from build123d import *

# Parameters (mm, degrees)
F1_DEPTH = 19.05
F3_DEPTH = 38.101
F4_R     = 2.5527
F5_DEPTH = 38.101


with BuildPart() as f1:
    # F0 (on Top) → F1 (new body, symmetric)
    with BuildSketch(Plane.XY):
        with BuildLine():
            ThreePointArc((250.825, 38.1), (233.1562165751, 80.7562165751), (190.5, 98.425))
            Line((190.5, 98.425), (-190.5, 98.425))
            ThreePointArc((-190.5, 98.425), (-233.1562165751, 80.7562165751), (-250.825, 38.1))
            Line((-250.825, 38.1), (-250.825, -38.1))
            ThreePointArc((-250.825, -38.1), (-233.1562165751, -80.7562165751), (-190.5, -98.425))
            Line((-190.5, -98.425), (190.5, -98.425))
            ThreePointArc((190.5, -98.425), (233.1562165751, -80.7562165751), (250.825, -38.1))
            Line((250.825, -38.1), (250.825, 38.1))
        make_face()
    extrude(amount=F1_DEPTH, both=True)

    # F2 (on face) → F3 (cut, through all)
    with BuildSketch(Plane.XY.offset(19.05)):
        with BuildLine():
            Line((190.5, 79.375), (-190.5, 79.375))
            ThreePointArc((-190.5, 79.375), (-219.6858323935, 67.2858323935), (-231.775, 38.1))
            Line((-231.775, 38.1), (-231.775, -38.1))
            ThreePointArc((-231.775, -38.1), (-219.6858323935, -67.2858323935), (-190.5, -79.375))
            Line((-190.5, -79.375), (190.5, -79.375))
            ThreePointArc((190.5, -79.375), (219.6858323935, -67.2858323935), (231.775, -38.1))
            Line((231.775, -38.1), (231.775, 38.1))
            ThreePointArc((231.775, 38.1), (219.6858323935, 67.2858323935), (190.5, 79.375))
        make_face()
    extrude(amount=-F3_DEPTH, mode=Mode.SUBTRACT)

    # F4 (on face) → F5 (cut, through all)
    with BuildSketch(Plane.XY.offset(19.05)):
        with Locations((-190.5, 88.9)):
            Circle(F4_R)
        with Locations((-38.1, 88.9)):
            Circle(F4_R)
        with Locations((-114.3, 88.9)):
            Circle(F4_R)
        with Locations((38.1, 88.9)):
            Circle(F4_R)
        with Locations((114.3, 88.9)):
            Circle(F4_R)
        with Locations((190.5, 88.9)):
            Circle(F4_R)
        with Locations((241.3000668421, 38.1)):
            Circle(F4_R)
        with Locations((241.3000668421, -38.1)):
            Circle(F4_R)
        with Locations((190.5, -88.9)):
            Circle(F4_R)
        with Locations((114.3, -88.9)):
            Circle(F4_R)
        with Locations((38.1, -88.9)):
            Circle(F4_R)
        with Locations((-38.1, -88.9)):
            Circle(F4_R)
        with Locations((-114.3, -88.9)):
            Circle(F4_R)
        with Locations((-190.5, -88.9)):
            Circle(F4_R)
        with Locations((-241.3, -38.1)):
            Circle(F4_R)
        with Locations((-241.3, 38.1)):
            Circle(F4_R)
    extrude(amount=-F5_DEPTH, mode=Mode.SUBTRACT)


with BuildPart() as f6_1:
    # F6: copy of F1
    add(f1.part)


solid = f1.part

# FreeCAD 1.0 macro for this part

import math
import FreeCAD as App
import Part
import Sketcher

V = App.Vector
Q = App.Units.Quantity

doc = App.newDocument("Part")
params = doc.addObject("Spreadsheet::Sheet", "Params")
for row, (alias, value) in enumerate([
    ("sketch1_width", "15 in"),
    ("sketch1_height", "3 in"),
    ("sketch1_radius", "2.375 in"),
    ("pad1_length", "1.5 in"),
    ("sketch2_width", "15 in"),
    ("sketch2_height", "3 in"),
    ("sketch2_radius", "1.625 in"),
    ("sketch3_diameter", "0.201 in"),
], start=1):
    params.set(f"A{row}", alias)
    params.set(f"B{row}", "=" + value)
    params.setAlias(f"B{row}", alias)

body = doc.addObject("PartDesign::Body", "Body")

# Sketch on XY plane
sketch1 = body.newObject("Sketcher::SketchObject", "Sketch")
sketch1.AttachmentSupport = (doc.getObject("XY_Plane"), [""])
sketch1.MapMode = "FlatFace"
sketch1.addGeometry(Part.ArcOfCircle(Part.Circle(V(190, 38, 0), V(0, 0, 1), 60), math.radians(0), math.radians(90)), False)
sketch1.addGeometry(Part.LineSegment(V(190, 98, 0), V(-190, 98, 0)), False)
sketch1.addGeometry(Part.ArcOfCircle(Part.Circle(V(-190, 38, 0), V(0, 0, 1), 60), math.radians(90), math.radians(180)), False)
sketch1.addGeometry(Part.LineSegment(V(-251, 38, 0), V(-251, -38, 0)), False)
sketch1.addGeometry(Part.ArcOfCircle(Part.Circle(V(-190, -38, 0), V(0, 0, 1), 60), math.radians(180), math.radians(270)), False)
sketch1.addGeometry(Part.LineSegment(V(-190, -98, 0), V(190, -98, 0)), False)
sketch1.addGeometry(Part.ArcOfCircle(Part.Circle(V(190, -38, 0), V(0, 0, 1), 60), math.radians(-90), math.radians(0)), False)
sketch1.addGeometry(Part.LineSegment(V(251, -38, 0), V(251, 38, 0)), False)
sketch1.addConstraint(Sketcher.Constraint("Tangent", 0, 2, 1, 1))
sketch1.addConstraint(Sketcher.Constraint("Tangent", 1, 2, 2, 1))
sketch1.addConstraint(Sketcher.Constraint("Tangent", 2, 2, 3, 1))
sketch1.addConstraint(Sketcher.Constraint("Tangent", 3, 2, 4, 1))
sketch1.addConstraint(Sketcher.Constraint("Tangent", 4, 2, 5, 1))
sketch1.addConstraint(Sketcher.Constraint("Tangent", 5, 2, 6, 1))
sketch1.addConstraint(Sketcher.Constraint("Tangent", 6, 2, 7, 1))
sketch1.addConstraint(Sketcher.Constraint("Tangent", 7, 2, 0, 1))
sketch1.addConstraint(Sketcher.Constraint("Horizontal", 1))
sketch1.addConstraint(Sketcher.Constraint("Vertical", 3))
sketch1.addConstraint(Sketcher.Constraint("Horizontal", 5))
sketch1.addConstraint(Sketcher.Constraint("Vertical", 7))
sketch1.addConstraint(Sketcher.Constraint("Equal", 0, 2))
sketch1.addConstraint(Sketcher.Constraint("Equal", 2, 4))
sketch1.addConstraint(Sketcher.Constraint("Equal", 4, 6))
sketch1.addConstraint(Sketcher.Constraint("Symmetric", 0, 3, 4, 3, -1, 1))
sketch1.addConstraint(Sketcher.Constraint("DistanceX", 1, 2, 1, 1, Q("15 in")))
sketch1.addConstraint(Sketcher.Constraint("DistanceY", 3, 2, 3, 1, Q("3 in")))
sketch1.addConstraint(Sketcher.Constraint("Radius", 0, Q("2.375 in")))
sketch1.setExpression("Constraints[16]", "Params.sketch1_width")
sketch1.setExpression("Constraints[17]", "Params.sketch1_height")
sketch1.setExpression("Constraints[18]", "Params.sketch1_radius")
pad1 = body.newObject("PartDesign::Pad", "Pad")
pad1.Profile = sketch1
pad1.setExpression("Length", "Params.pad1_length")
pad1.Midplane = True

# Sketch on XY plane
sketch2 = body.newObject("Sketcher::SketchObject", "Sketch001")
sketch2.AttachmentSupport = (doc.getObject("XY_Plane"), [""])
sketch2.MapMode = "FlatFace"
sketch2.AttachmentOffset = App.Placement(V(0, 0, 0.75 * 25.4), App.Rotation())
sketch2.addGeometry(Part.LineSegment(V(190, 79, 0), V(-190, 79, 0)), False)
sketch2.addGeometry(Part.ArcOfCircle(Part.Circle(V(-190, 38, 0), V(0, 0, 1), 41), math.radians(90), math.radians(180)), False)
sketch2.addGeometry(Part.LineSegment(V(-232, 38, 0), V(-232, -38, 0)), False)
sketch2.addGeometry(Part.ArcOfCircle(Part.Circle(V(-190, -38, 0), V(0, 0, 1), 41), math.radians(180), math.radians(270)), False)
sketch2.addGeometry(Part.LineSegment(V(-190, -79, 0), V(190, -79, 0)), False)
sketch2.addGeometry(Part.ArcOfCircle(Part.Circle(V(190, -38, 0), V(0, 0, 1), 41), math.radians(-90), math.radians(0)), False)
sketch2.addGeometry(Part.LineSegment(V(232, -38, 0), V(232, 38, 0)), False)
sketch2.addGeometry(Part.ArcOfCircle(Part.Circle(V(190, 38, 0), V(0, 0, 1), 41), math.radians(0), math.radians(90)), False)
sketch2.addConstraint(Sketcher.Constraint("Tangent", 0, 2, 1, 1))
sketch2.addConstraint(Sketcher.Constraint("Tangent", 1, 2, 2, 1))
sketch2.addConstraint(Sketcher.Constraint("Tangent", 2, 2, 3, 1))
sketch2.addConstraint(Sketcher.Constraint("Tangent", 3, 2, 4, 1))
sketch2.addConstraint(Sketcher.Constraint("Tangent", 4, 2, 5, 1))
sketch2.addConstraint(Sketcher.Constraint("Tangent", 5, 2, 6, 1))
sketch2.addConstraint(Sketcher.Constraint("Tangent", 6, 2, 7, 1))
sketch2.addConstraint(Sketcher.Constraint("Tangent", 7, 2, 0, 1))
sketch2.addConstraint(Sketcher.Constraint("Horizontal", 0))
sketch2.addConstraint(Sketcher.Constraint("Vertical", 2))
sketch2.addConstraint(Sketcher.Constraint("Horizontal", 4))
sketch2.addConstraint(Sketcher.Constraint("Vertical", 6))
sketch2.addConstraint(Sketcher.Constraint("Equal", 1, 3))
sketch2.addConstraint(Sketcher.Constraint("Equal", 3, 5))
sketch2.addConstraint(Sketcher.Constraint("Equal", 5, 7))
sketch2.addConstraint(Sketcher.Constraint("Symmetric", 1, 3, 5, 3, -1, 1))
sketch2.addConstraint(Sketcher.Constraint("DistanceX", 0, 2, 0, 1, Q("15 in")))
sketch2.addConstraint(Sketcher.Constraint("DistanceY", 2, 2, 2, 1, Q("3 in")))
sketch2.addConstraint(Sketcher.Constraint("Radius", 1, Q("1.625 in")))
sketch2.setExpression("Constraints[16]", "Params.sketch2_width")
sketch2.setExpression("Constraints[17]", "Params.sketch2_height")
sketch2.setExpression("Constraints[18]", "Params.sketch2_radius")
pocket1 = body.newObject("PartDesign::Pocket", "Pocket")
pocket1.Profile = sketch2
pocket1.Type = "ThroughAll"

# Sketch on XY plane
sketch3 = body.newObject("Sketcher::SketchObject", "Sketch002")
sketch3.AttachmentSupport = (doc.getObject("XY_Plane"), [""])
sketch3.MapMode = "FlatFace"
sketch3.AttachmentOffset = App.Placement(V(0, 0, 0.75 * 25.4), App.Rotation())
sketch3.addGeometry(Part.Circle(V(-190.5, 88.9, 0), V(0, 0, 1), 2.5527), False)
sketch3.addGeometry(Part.Circle(V(-38.1, 88.9, 0), V(0, 0, 1), 2.5527), False)
sketch3.addGeometry(Part.Circle(V(-114.3, 88.9, 0), V(0, 0, 1), 2.5527), False)
sketch3.addGeometry(Part.Circle(V(38.1, 88.9, 0), V(0, 0, 1), 2.5527), False)
sketch3.addGeometry(Part.Circle(V(114.3, 88.9, 0), V(0, 0, 1), 2.5527), False)
sketch3.addGeometry(Part.Circle(V(190.5, 88.9, 0), V(0, 0, 1), 2.5527), False)
sketch3.addGeometry(Part.Circle(V(241.300067, 38.1, 0), V(0, 0, 1), 2.5527), False)
sketch3.addGeometry(Part.Circle(V(241.300067, -38.1, 0), V(0, 0, 1), 2.5527), False)
sketch3.addGeometry(Part.Circle(V(190.5, -88.9, 0), V(0, 0, 1), 2.5527), False)
sketch3.addGeometry(Part.Circle(V(114.3, -88.9, 0), V(0, 0, 1), 2.5527), False)
sketch3.addGeometry(Part.Circle(V(38.1, -88.9, 0), V(0, 0, 1), 2.5527), False)
sketch3.addGeometry(Part.Circle(V(-38.1, -88.9, 0), V(0, 0, 1), 2.5527), False)
sketch3.addGeometry(Part.Circle(V(-114.3, -88.9, 0), V(0, 0, 1), 2.5527), False)
sketch3.addGeometry(Part.Circle(V(-190.5, -88.9, 0), V(0, 0, 1), 2.5527), False)
sketch3.addGeometry(Part.Circle(V(-241.3, -38.1, 0), V(0, 0, 1), 2.5527), False)
sketch3.addGeometry(Part.Circle(V(-241.3, 38.1, 0), V(0, 0, 1), 2.5527), False)
sketch3.addConstraint(Sketcher.Constraint("Equal", 0, 1))
sketch3.addConstraint(Sketcher.Constraint("Equal", 1, 2))
sketch3.addConstraint(Sketcher.Constraint("Equal", 2, 3))
sketch3.addConstraint(Sketcher.Constraint("Equal", 3, 4))
sketch3.addConstraint(Sketcher.Constraint("Equal", 4, 5))
sketch3.addConstraint(Sketcher.Constraint("Equal", 5, 6))
sketch3.addConstraint(Sketcher.Constraint("Equal", 6, 7))
sketch3.addConstraint(Sketcher.Constraint("Equal", 7, 8))
sketch3.addConstraint(Sketcher.Constraint("Equal", 8, 9))
sketch3.addConstraint(Sketcher.Constraint("Equal", 9, 10))
sketch3.addConstraint(Sketcher.Constraint("Equal", 10, 11))
sketch3.addConstraint(Sketcher.Constraint("Equal", 11, 12))
sketch3.addConstraint(Sketcher.Constraint("Equal", 12, 13))
sketch3.addConstraint(Sketcher.Constraint("Equal", 13, 14))
sketch3.addConstraint(Sketcher.Constraint("Equal", 14, 15))
sketch3.addConstraint(Sketcher.Constraint("Symmetric", 0, 3, 8, 3, -1, 1))
sketch3.addConstraint(Sketcher.Constraint("Symmetric", 2, 3, 9, 3, -1, 1))
sketch3.addConstraint(Sketcher.Constraint("Symmetric", 1, 3, 10, 3, -1, 1))
sketch3.addConstraint(Sketcher.Constraint("Symmetric", 3, 3, 11, 3, -1, 1))
sketch3.addConstraint(Sketcher.Constraint("Symmetric", 4, 3, 12, 3, -1, 1))
sketch3.addConstraint(Sketcher.Constraint("Symmetric", 5, 3, 13, 3, -1, 1))
sketch3.addConstraint(Sketcher.Constraint("Symmetric", 1, 3, 3, 3, -2))
sketch3.addConstraint(Sketcher.Constraint("Symmetric", 2, 3, 4, 3, -2))
sketch3.addConstraint(Sketcher.Constraint("Symmetric", 0, 3, 5, 3, -2))
sketch3.addConstraint(Sketcher.Constraint("Symmetric", 6, 3, 7, 3, -1))
sketch3.addConstraint(Sketcher.Constraint("Symmetric", 14, 3, 15, 3, -1))
sketch3.addConstraint(Sketcher.Constraint("Horizontal", 0, 3, 1, 3))
sketch3.addConstraint(Sketcher.Constraint("Horizontal", 1, 3, 2, 3))
sketch3.addConstraint(Sketcher.Constraint("Horizontal", 7, 3, 14, 3))
sketch3.addConstraint(Sketcher.Constraint("Diameter", 0, Q("0.201 in")))
sketch3.addConstraint(Sketcher.Constraint("DistanceX", 0, 3, 1, 3, Q("6 in")))
sketch3.addConstraint(Sketcher.Constraint("DistanceX", 2, 3, 1, 3, Q("3 in")))
sketch3.addConstraint(Sketcher.Constraint("DistanceX", 1, 3, 3, 3, Q("3 in")))
sketch3.addConstraint(Sketcher.Constraint("DistanceY", 6, 3, 5, 3, Q("2 in")))
sketch3.addConstraint(Sketcher.Constraint("DistanceY", 7, 3, 6, 3, Q("3 in")))
sketch3.addConstraint(Sketcher.Constraint("DistanceX", 14, 3, 13, 3, Q("2 in")))
sketch3.addConstraint(Sketcher.Constraint("DistanceX", -1, 1, 6, 3, Q("241.300067 mm")))
sketch3.setExpression("Constraints[29]", "Params.sketch3_diameter")
pocket2 = body.newObject("PartDesign::Pocket", "Pocket001")
pocket2.Profile = sketch3
pocket2.Type = "ThroughAll"
body2 = doc.addObject("PartDesign::Body", "Body001")
doc.recompute()

body2.BaseFeature = body
doc.recompute()
body.Visibility = False

doc.recompute()
